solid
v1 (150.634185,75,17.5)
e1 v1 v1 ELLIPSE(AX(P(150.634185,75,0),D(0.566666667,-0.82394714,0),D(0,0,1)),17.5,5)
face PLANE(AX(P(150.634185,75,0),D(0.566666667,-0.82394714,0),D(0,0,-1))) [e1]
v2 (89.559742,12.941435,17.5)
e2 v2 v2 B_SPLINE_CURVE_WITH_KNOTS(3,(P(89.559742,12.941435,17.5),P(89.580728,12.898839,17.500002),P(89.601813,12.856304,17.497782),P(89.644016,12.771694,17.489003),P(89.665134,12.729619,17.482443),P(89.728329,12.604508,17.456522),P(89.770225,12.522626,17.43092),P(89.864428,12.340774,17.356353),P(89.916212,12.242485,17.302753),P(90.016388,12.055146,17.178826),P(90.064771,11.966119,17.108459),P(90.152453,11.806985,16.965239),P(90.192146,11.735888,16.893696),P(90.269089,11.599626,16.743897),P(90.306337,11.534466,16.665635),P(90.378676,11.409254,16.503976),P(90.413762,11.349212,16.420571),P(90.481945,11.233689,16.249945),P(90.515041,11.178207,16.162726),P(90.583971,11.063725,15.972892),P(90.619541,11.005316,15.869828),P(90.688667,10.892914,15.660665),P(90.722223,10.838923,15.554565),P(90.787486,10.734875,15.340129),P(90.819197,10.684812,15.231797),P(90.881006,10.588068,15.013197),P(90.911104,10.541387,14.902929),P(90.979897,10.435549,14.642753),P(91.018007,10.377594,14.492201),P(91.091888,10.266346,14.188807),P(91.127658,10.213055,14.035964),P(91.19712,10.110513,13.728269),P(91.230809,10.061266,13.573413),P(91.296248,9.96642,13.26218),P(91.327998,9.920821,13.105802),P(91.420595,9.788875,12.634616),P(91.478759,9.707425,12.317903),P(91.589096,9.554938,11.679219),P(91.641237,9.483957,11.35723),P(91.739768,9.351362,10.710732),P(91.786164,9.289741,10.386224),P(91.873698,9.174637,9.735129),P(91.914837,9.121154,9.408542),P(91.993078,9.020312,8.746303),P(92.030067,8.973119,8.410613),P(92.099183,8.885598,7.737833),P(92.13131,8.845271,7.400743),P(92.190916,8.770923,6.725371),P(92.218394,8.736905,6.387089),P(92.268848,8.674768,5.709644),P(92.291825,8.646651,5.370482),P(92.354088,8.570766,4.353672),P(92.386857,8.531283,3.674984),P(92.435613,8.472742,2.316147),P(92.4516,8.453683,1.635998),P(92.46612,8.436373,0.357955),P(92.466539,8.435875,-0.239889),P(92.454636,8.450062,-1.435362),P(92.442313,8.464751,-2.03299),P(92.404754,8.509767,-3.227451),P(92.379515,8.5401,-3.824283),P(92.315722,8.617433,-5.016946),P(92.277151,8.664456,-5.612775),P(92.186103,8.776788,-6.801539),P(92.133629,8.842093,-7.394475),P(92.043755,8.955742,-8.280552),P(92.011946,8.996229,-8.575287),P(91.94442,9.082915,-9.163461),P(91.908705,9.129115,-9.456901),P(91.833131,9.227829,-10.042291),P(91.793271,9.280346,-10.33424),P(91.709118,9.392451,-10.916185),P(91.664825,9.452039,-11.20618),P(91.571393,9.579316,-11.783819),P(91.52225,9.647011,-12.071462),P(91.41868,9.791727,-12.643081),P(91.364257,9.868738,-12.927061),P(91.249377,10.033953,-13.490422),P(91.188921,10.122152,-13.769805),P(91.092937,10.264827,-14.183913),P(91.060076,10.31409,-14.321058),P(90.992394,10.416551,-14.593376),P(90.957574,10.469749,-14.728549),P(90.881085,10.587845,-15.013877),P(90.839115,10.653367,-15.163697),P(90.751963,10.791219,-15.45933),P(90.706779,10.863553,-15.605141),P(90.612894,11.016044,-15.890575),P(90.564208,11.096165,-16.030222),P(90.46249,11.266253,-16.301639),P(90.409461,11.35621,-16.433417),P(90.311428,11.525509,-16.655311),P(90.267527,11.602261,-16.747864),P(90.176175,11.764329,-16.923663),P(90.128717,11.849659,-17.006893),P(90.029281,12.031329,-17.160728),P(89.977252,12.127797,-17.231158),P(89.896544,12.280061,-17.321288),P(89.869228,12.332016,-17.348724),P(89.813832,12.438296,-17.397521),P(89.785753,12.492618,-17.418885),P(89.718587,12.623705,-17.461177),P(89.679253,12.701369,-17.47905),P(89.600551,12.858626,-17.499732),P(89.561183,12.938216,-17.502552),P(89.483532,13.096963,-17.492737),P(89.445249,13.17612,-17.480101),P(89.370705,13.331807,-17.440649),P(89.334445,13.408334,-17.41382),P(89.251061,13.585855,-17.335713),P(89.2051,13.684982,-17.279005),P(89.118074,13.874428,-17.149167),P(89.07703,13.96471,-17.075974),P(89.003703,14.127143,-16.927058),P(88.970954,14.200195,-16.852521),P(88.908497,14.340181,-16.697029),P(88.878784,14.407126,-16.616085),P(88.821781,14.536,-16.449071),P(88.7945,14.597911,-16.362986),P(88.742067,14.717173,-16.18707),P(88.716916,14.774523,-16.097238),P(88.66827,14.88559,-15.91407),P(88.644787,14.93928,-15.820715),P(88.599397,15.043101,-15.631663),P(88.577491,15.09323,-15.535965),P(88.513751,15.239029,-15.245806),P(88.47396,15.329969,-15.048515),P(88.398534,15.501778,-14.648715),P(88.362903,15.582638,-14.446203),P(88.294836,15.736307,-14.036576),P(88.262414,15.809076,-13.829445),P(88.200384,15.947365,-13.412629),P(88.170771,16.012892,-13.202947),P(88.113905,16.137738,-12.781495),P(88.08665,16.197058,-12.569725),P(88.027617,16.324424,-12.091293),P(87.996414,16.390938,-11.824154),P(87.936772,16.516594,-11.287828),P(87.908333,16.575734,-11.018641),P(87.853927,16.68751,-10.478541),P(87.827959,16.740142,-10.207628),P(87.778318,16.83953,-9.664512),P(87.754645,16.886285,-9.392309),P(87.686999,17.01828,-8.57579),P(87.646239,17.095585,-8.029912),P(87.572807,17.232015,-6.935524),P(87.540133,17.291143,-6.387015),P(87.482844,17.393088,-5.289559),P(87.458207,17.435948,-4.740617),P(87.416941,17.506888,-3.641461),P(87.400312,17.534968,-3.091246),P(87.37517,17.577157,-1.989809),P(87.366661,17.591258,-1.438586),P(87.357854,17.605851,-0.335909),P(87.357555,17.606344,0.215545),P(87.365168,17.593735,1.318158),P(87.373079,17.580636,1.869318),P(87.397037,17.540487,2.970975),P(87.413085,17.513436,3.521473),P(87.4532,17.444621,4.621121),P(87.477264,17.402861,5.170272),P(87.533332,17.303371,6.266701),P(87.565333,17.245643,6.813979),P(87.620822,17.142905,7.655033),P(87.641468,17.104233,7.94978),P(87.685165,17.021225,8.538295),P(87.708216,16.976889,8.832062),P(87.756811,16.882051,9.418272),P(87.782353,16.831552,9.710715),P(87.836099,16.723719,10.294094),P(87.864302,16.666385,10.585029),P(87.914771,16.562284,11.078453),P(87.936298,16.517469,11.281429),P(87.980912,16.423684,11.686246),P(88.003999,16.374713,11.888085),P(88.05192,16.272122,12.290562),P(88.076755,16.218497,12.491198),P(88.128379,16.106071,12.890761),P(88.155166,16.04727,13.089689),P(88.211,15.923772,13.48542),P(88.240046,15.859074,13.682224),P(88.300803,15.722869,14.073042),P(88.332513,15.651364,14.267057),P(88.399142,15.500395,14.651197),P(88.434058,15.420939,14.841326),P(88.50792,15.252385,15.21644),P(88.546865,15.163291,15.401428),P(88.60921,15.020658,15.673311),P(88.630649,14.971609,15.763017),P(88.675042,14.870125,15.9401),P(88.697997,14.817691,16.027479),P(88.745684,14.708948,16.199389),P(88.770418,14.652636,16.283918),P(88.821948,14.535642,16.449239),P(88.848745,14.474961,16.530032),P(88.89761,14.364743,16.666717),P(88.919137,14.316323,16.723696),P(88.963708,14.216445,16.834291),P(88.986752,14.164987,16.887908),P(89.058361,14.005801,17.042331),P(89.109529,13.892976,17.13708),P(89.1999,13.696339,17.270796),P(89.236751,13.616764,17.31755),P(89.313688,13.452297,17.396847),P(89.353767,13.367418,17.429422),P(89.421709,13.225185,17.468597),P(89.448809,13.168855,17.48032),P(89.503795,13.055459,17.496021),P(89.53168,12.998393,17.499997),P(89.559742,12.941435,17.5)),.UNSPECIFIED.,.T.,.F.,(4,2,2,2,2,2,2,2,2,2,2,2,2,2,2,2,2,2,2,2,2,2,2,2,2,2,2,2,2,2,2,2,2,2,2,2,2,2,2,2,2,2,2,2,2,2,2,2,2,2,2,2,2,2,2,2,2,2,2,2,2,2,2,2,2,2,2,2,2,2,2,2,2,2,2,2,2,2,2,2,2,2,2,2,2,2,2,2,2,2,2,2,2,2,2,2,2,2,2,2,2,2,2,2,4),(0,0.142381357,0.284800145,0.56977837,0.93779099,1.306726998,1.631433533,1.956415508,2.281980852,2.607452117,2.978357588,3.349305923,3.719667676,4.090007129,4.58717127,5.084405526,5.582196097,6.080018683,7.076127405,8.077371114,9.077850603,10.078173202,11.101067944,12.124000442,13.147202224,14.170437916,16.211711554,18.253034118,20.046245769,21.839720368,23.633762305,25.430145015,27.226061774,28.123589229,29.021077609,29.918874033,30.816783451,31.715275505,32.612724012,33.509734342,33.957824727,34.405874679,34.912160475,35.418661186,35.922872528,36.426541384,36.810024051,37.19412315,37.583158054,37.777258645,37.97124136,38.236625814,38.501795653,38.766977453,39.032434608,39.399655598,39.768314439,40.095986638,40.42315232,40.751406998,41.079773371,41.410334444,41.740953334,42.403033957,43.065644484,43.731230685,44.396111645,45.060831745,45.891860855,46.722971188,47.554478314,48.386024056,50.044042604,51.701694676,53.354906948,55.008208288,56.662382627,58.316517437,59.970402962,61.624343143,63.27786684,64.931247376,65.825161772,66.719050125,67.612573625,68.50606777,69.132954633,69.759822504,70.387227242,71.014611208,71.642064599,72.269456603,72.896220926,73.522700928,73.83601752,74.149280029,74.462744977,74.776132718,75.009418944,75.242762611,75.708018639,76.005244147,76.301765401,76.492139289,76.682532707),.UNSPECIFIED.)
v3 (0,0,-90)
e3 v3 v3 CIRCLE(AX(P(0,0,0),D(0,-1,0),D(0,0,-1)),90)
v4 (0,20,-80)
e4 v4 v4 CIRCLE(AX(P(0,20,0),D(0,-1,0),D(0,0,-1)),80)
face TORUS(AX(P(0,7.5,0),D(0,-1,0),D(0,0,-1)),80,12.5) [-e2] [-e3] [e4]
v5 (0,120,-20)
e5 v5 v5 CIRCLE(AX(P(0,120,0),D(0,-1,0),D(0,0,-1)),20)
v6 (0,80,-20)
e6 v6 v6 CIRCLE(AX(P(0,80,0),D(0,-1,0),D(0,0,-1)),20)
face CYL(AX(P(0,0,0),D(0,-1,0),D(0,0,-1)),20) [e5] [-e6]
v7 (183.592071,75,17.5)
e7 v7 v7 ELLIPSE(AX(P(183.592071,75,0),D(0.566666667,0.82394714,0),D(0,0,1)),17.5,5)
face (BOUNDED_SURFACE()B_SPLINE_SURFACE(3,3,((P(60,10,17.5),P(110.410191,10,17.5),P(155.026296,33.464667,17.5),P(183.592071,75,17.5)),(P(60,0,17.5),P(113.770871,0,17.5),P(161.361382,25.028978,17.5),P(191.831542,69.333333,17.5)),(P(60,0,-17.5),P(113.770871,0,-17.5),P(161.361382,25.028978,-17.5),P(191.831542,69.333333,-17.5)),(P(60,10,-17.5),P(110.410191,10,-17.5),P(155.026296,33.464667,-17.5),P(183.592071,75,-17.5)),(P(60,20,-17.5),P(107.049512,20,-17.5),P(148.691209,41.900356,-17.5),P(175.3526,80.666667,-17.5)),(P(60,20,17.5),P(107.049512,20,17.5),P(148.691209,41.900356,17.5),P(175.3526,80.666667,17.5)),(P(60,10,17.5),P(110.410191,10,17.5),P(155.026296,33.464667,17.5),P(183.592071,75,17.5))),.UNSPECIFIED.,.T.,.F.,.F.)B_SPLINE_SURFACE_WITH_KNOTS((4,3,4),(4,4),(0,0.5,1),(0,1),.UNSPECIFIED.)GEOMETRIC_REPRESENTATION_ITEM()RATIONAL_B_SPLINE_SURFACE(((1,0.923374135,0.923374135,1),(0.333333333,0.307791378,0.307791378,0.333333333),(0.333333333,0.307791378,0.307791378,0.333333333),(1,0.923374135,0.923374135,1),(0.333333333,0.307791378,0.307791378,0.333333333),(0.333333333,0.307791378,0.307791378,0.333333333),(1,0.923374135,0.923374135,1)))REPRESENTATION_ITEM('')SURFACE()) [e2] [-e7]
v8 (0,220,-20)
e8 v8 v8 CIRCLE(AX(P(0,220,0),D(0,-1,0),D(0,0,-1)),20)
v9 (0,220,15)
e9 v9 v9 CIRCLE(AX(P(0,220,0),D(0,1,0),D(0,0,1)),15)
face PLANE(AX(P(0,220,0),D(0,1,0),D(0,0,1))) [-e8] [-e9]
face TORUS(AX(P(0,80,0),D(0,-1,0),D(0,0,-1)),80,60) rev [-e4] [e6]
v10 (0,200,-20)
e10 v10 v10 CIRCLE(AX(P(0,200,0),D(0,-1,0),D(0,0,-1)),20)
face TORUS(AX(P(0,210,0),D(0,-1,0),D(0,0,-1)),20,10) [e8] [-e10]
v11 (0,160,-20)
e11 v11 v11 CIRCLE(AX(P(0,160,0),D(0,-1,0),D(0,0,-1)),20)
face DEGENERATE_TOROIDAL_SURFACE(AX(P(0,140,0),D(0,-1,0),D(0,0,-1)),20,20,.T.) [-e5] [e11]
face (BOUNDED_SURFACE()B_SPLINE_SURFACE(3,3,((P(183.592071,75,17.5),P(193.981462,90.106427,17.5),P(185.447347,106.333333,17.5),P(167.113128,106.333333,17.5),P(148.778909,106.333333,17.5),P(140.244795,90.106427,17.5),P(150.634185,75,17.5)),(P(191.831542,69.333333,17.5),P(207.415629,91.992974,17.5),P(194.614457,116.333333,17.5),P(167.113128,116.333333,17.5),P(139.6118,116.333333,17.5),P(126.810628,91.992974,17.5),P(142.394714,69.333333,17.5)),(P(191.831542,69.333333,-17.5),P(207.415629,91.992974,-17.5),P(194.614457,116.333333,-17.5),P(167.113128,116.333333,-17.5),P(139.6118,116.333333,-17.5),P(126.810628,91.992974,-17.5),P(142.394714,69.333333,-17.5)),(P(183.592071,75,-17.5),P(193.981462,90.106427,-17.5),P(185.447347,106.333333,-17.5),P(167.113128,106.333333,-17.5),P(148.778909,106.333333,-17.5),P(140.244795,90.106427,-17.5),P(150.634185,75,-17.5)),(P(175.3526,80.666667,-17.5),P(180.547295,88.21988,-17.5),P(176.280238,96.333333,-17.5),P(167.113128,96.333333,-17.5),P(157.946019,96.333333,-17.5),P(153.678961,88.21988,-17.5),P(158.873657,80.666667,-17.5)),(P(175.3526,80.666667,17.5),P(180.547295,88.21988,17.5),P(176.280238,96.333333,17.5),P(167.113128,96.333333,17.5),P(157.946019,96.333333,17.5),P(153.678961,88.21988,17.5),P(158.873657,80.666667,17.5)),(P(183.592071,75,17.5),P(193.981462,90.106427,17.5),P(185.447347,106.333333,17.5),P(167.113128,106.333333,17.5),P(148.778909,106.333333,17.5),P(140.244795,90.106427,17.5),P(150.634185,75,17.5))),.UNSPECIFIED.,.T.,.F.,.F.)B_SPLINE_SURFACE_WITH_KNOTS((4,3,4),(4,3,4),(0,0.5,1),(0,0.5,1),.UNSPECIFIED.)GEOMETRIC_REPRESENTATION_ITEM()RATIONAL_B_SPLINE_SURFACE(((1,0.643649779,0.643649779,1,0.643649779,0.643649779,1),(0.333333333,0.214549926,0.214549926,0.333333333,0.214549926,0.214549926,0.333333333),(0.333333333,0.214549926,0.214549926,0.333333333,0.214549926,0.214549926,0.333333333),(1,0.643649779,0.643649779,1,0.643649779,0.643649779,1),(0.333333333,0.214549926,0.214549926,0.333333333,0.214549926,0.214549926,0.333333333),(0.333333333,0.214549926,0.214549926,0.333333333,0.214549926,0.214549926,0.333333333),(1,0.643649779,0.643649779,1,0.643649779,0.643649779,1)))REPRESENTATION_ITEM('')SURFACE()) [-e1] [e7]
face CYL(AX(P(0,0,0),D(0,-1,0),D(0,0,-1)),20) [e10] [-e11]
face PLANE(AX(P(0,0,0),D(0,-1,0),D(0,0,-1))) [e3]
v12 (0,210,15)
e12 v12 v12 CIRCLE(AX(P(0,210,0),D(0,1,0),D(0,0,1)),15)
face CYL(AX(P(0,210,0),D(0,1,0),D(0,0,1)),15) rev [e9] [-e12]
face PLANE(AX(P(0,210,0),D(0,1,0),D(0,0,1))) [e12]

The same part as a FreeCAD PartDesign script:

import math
import FreeCAD as App
import Part
import Sketcher
from FreeCAD import Vector
Q = App.Units.Quantity

doc = App.newDocument("Part")
params = doc.addObject("Spreadsheet::Sheet", "Params")
for row, (alias, value) in enumerate([
    ("sketch1_radius", "60 mm"),
    ("sketch1_radius2", "20 mm"),
    ("sketch1_radius3", "10 mm"),
    ("sketch1_radius4", "12.5 mm"),
    ("sketch1_width", "90 mm"),
    ("revolution_angle", "360 deg"),
    ("sketch3_radius", "150 mm"),
    ("sketch3_radius2", "20 mm"),
    ("sketch3_width", "60 mm"),
    ("sketch4_diameter", "30 mm"),
    ("pocket1_length", "10 mm"),
], start=1):
    params.set(f"A{row}", alias)
    params.set(f"B{row}", "=" + value)
    params.setAlias(f"B{row}", alias)

body = doc.addObject("PartDesign::Body", "Body")

sketch1 = body.newObject("Sketcher::SketchObject", "Sketch")
sketch1.AttachmentSupport = (doc.getObject("XY_Plane"), [""])
sketch1.MapMode = "FlatFace"
sketch1.addGeometry([
    Part.LineSegment(Vector(0, 0, 0), Vector(90, 0, 0)),
    Part.ArcOfCircle(Part.Circle(Vector(80, 8, 0), Vector(0, 0, 1), 12), math.radians(-37), math.radians(90)),
    Part.ArcOfCircle(Part.Circle(Vector(80, 80, 0), Vector(0, 0, 1), 60), math.radians(-180), math.radians(-90)),
    Part.LineSegment(Vector(20, 80, 0), Vector(20, 120, 0)),
    Part.ArcOfCircle(Part.Circle(Vector(20, 140, 0), Vector(0, 0, 1), 20), math.radians(-90), math.radians(90)),
    Part.LineSegment(Vector(20, 160, 0), Vector(20, 200, 0)),
    Part.ArcOfCircle(Part.Circle(Vector(20, 210, 0), Vector(0, 0, 1), 10), math.radians(-90), math.radians(90)),
    Part.LineSegment(Vector(20, 220, 0), Vector(0, 220, 0)),
    Part.LineSegment(Vector(0, 220, 0), Vector(0, 0, 0)),
], False)
sketch1.addConstraint([
    Sketcher.Constraint("Coincident", 0, 2, 1, 1),
    Sketcher.Constraint("Tangent", 1, 2, 2, 2),
    Sketcher.Constraint("Tangent", 2, 1, 3, 1),
    Sketcher.Constraint("Coincident", 3, 2, 4, 1),
    Sketcher.Constraint("Coincident", 4, 2, 5, 1),
    Sketcher.Constraint("Coincident", 5, 2, 6, 1),
    Sketcher.Constraint("Tangent", 6, 2, 7, 1),
    Sketcher.Constraint("Coincident", 7, 2, 8, 1),
    Sketcher.Constraint("Coincident", 8, 2, 0, 1),
    Sketcher.Constraint("Horizontal", 0),
    Sketcher.Constraint("Vertical", 3),
    Sketcher.Constraint("Vertical", 5),
    Sketcher.Constraint("Horizontal", 7),
    Sketcher.Constraint("Vertical", 8),
    Sketcher.Constraint("Coincident", 8, 2, -1, 1),
    Sketcher.Constraint("Vertical", 1, 3, 2, 3),
    Sketcher.Constraint("Vertical", 4, 3, 6, 3),
    Sketcher.Constraint("Vertical", 6, 3, 2, 1),
    Sketcher.Constraint("Vertical", 3, 2, 4, 2),
    Sketcher.Constraint("Equal", 3, 5),
    Sketcher.Constraint("Radius", 2, Q("60 mm")),
    Sketcher.Constraint("Radius", 4, Q("20 mm")),
    Sketcher.Constraint("Radius", 6, Q("10 mm")),
    Sketcher.Constraint("Radius", 1, Q("12.5 mm")),
    Sketcher.Constraint("DistanceX", 0, 1, 0, 2, Q("90 mm")),
    Sketcher.Constraint("DistanceX", 7, 2, 7, 1, Q("20 mm")),
    Sketcher.Constraint("DistanceY", 3, 1, 3, 2, Q("40 mm")),
])
sketch1.setExpression("Constraints[20]", "Params.sketch1_radius")
sketch1.setExpression("Constraints[21]", "Params.sketch1_radius2")
sketch1.setExpression("Constraints[22]", "Params.sketch1_radius3")
sketch1.setExpression("Constraints[23]", "Params.sketch1_radius4")
sketch1.setExpression("Constraints[24]", "Params.sketch1_width")
revolution = body.newObject("PartDesign::Revolution", "Revolution")
revolution.Profile = sketch1
revolution.ReferenceAxis = (sketch1, ["V_Axis"])
revolution.setExpression("Angle", "Params.revolution_angle")

sketch2 = body.newObject("Sketcher::SketchObject", "Sketch001")
sketch2.AttachmentSupport = (doc.getObject("YZ_Plane"), [""])
sketch2.MapMode = "FlatFace"
sketch2.addGeometry(Part.Ellipse(Vector(10, 17.5, 0), Vector(5, 0, 0), Vector(10, 0, 0)), False)
sketch2.addConstraint(Sketcher.Constraint("Block", 0))

sketch3 = body.newObject("Sketcher::SketchObject", "Sketch002")
sketch3.AttachmentSupport = (doc.getObject("XY_Plane"), [""])
sketch3.MapMode = "FlatFace"
sketch3.addGeometry([
    Part.LineSegment(Vector(0, 10, 0), Vector(60, 10, 0)),
    Part.ArcOfCircle(Part.Circle(Vector(60, 160, 0), Vector(0, 0, 1), 150), math.radians(-90), math.radians(-35)),
    Part.ArcOfCircle(Part.Circle(Vector(167, 86, 0), Vector(0, 0, 1), 20), math.radians(-35), math.radians(215)),
], False)
sketch3.addConstraint([
    Sketcher.Constraint("Tangent", 0, 2, 1, 1),
    Sketcher.Constraint("Tangent", 1, 2, 2, 1),
    Sketcher.Constraint("Horizontal", 0),
    Sketcher.Constraint("PointOnObject", 0, 1, -2),
    Sketcher.Constraint("Horizontal", 1, 2, 2, 2),
    Sketcher.Constraint("Radius", 1, Q("150 mm")),
    Sketcher.Constraint("Radius", 2, Q("20 mm")),
    Sketcher.Constraint("DistanceX", 0, 1, 0, 2, Q("60 mm")),
    Sketcher.Constraint("DistanceY", -1, 1, 1, 3, Q("160 mm")),
    Sketcher.Constraint("DistanceY", -1, 1, 1, 2, Q("75 mm")),
])
sketch3.setExpression("Constraints[5]", "Params.sketch3_radius")
sketch3.setExpression("Constraints[6]", "Params.sketch3_radius2")
sketch3.setExpression("Constraints[7]", "Params.sketch3_width")
doc.recompute()

additivepipe = body.newObject("PartDesign::AdditivePipe", "AdditivePipe")
additivepipe.Profile = sketch2
additivepipe.Spine = (sketch3, ["Edge1", "Edge2", "Edge3"])

sketch4 = body.newObject("Sketcher::SketchObject", "Sketch003")
sketch4.AttachmentSupport = (doc.getObject("XZ_Plane"), [""])
sketch4.MapMode = "FlatFace"
sketch4.AttachmentOffset = App.Placement(Vector(0, 0, -220), App.Rotation())
sketch4.addGeometry(Part.Circle(Vector(0, 0, 0), Vector(0, 0, 1), 15), False)
sketch4.addConstraint([
    Sketcher.Constraint("Coincident", 0, 3, -1, 1),
    Sketcher.Constraint("Diameter", 0, Q("30 mm")),
])
sketch4.setExpression("Constraints[1]", "Params.sketch4_diameter")
pocket1 = body.newObject("PartDesign::Pocket", "Pocket")
pocket1.Profile = sketch4
pocket1.setExpression("Length", "Params.pocket1_length")
pocket1.Reversed = True

doc.recompute()
